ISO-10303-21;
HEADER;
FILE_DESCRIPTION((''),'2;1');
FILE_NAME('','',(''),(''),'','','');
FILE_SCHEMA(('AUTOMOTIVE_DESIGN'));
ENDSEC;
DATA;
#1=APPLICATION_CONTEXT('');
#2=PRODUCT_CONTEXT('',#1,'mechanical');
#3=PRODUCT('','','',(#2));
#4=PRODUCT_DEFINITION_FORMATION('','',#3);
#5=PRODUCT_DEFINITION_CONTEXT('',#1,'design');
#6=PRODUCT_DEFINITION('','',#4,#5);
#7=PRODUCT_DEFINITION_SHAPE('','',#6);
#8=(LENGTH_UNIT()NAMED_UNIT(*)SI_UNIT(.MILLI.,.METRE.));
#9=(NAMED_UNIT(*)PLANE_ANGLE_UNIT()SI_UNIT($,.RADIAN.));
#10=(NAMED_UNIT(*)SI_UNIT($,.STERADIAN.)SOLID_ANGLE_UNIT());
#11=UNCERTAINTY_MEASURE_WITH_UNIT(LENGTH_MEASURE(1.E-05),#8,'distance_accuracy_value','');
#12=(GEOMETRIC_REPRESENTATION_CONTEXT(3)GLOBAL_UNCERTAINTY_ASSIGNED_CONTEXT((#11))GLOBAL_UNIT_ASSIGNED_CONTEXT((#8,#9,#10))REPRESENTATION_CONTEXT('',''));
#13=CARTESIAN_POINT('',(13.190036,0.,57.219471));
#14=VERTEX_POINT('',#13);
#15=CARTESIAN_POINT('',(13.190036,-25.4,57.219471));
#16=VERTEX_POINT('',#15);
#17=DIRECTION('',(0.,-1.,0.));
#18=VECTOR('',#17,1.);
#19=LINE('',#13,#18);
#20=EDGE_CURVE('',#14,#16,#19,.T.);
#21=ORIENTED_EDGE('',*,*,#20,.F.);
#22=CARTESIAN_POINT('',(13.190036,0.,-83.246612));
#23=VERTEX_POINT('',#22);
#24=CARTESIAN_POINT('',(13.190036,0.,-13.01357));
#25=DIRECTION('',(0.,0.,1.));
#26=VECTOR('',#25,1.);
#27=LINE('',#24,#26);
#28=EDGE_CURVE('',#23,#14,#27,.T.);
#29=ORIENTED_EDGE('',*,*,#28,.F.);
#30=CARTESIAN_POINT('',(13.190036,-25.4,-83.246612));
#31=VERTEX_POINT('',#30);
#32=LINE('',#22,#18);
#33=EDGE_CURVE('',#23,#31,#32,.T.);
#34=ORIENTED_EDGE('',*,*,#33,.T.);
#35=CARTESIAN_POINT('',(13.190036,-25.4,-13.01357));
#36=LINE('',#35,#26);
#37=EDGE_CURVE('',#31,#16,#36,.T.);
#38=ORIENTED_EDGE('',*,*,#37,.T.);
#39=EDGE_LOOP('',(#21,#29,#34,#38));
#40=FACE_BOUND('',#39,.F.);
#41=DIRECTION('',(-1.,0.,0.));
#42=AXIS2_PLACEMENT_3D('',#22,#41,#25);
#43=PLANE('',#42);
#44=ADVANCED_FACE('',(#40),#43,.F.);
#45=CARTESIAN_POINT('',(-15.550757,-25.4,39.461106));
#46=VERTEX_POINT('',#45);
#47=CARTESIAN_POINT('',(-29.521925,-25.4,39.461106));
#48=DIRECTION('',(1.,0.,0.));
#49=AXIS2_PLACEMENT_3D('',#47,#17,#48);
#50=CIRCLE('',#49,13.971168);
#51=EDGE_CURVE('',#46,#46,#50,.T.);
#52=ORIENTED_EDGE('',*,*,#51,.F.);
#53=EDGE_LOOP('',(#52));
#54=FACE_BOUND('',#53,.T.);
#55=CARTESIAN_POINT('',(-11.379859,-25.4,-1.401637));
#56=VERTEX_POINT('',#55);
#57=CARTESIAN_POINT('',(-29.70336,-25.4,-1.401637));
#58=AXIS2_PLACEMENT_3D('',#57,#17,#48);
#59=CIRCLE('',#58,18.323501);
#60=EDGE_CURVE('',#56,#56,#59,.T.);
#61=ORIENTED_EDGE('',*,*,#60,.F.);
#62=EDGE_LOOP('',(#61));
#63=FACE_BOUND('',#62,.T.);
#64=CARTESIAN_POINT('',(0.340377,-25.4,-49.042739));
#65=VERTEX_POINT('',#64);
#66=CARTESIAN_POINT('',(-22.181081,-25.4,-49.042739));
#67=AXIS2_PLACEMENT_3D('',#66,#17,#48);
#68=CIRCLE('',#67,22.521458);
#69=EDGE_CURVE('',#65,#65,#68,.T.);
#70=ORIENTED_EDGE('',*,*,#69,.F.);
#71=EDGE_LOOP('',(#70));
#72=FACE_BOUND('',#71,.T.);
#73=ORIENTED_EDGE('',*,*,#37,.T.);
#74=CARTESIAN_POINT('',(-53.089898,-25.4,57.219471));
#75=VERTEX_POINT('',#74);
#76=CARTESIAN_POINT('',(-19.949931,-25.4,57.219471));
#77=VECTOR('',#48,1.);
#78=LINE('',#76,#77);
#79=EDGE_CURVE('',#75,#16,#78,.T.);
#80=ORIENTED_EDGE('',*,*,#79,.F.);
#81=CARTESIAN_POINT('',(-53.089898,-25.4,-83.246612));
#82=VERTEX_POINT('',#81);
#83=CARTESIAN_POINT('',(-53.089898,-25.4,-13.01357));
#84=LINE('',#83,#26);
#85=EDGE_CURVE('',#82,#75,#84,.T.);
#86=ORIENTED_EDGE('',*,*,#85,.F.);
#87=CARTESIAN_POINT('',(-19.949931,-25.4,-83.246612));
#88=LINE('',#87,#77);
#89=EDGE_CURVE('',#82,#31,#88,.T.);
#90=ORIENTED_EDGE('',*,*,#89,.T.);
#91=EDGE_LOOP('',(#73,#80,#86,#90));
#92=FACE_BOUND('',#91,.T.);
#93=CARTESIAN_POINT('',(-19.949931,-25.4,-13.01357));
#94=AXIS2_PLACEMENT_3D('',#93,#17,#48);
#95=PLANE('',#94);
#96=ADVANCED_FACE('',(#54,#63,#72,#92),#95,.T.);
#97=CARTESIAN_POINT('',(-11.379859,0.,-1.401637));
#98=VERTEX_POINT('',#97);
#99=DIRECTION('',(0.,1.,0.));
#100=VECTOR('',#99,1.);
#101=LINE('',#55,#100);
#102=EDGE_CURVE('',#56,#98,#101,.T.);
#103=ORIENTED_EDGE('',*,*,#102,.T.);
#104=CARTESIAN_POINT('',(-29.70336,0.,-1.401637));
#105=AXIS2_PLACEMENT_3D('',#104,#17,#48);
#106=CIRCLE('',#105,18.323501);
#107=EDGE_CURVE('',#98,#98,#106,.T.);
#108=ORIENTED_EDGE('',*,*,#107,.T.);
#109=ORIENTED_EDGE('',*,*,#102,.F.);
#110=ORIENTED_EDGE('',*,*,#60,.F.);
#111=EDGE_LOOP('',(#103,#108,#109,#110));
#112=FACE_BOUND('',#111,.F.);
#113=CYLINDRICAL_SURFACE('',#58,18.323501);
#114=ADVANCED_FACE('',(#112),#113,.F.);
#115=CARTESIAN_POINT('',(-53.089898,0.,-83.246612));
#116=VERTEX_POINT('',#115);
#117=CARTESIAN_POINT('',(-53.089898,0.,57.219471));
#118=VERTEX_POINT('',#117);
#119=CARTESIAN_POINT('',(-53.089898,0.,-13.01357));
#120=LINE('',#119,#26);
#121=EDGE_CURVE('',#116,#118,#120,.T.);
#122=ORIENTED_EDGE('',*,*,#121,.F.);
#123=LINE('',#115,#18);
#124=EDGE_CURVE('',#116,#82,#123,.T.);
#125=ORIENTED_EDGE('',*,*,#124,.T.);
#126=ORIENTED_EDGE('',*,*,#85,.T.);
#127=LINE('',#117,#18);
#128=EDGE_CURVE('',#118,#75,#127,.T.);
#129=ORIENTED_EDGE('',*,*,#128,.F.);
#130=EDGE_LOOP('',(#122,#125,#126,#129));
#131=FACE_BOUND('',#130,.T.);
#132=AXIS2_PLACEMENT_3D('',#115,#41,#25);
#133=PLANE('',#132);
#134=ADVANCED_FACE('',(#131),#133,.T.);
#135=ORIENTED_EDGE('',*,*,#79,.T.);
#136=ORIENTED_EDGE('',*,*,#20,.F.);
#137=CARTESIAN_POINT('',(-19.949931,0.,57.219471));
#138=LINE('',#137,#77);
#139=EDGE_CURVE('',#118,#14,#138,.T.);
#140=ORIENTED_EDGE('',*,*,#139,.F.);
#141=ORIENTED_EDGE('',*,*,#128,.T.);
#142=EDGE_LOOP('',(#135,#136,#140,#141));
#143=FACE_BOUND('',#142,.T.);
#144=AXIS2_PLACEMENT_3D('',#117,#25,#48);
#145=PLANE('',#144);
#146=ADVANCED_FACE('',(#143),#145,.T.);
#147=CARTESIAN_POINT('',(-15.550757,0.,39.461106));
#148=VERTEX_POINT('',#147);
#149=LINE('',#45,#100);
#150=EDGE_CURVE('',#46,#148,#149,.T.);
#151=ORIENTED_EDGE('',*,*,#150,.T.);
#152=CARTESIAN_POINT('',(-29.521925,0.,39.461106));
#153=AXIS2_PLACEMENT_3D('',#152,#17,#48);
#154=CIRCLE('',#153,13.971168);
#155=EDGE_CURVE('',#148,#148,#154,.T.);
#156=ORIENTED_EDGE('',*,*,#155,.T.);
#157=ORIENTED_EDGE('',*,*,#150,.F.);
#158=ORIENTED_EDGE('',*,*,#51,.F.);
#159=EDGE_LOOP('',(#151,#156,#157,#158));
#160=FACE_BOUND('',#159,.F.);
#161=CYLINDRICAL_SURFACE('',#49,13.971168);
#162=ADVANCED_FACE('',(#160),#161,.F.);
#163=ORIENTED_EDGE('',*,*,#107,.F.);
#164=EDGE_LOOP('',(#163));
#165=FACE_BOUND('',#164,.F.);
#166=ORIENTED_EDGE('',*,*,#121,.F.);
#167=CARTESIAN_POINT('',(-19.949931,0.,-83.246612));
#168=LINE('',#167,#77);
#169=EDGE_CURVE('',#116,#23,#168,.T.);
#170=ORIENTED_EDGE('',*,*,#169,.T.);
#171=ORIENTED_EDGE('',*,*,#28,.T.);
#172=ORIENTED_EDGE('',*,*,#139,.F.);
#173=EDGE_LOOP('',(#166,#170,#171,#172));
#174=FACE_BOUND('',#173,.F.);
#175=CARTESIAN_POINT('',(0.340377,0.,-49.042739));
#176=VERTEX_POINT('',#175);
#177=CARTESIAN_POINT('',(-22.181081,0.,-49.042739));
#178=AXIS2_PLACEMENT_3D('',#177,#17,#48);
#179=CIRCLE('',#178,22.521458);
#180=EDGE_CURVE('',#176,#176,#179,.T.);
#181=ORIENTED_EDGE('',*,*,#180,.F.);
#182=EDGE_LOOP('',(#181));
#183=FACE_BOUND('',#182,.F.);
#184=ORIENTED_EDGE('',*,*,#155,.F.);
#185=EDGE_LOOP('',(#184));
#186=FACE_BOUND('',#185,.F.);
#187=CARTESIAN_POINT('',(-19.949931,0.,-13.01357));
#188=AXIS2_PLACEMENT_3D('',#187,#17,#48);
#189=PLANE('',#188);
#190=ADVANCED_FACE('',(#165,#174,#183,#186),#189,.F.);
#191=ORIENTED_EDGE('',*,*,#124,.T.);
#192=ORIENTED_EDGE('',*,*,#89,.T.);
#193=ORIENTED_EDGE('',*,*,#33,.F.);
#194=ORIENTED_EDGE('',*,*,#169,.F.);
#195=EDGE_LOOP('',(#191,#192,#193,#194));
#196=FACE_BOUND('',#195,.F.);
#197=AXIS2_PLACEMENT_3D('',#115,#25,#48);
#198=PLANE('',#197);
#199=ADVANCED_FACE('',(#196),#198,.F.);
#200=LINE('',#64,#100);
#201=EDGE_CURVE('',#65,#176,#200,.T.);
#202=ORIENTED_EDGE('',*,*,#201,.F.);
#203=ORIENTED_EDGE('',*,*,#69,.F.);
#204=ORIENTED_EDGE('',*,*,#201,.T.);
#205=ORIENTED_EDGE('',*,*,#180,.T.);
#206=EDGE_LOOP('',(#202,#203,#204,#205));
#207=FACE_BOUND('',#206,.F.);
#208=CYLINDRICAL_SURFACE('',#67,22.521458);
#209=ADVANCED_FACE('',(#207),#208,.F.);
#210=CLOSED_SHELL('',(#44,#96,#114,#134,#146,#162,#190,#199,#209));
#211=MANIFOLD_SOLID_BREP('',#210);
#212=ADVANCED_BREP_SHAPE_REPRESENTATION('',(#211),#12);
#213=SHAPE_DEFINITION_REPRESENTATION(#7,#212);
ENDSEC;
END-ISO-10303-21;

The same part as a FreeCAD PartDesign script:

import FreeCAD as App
import Part
import Sketcher

V = App.Vector
Q = App.Units.Quantity


def add_polygon(sketch, points):
    """Adds a closed chain of lines whose ends are joined by coincident constraints."""
    first, n = sketch.GeometryCount, len(points)
    for a, b in zip(points, points[1:] + points[:1]):
        sketch.addGeometry(Part.LineSegment(App.Vector(*a, 0), App.Vector(*b, 0)), False)
    for i in range(n):
        sketch.addConstraint(Sketcher.Constraint("Coincident", first + i, 2, first + (i + 1) % n, 1))

doc = App.newDocument("Part")
body = doc.addObject("PartDesign::Body", "Body")

# Sketch on XZ plane
sketch1 = body.newObject("Sketcher::SketchObject", "Sketch")
sketch1.AttachmentSupport = (doc.getObject("XZ_Plane"), [""])
sketch1.MapMode = "FlatFace"
add_polygon(sketch1, [(-53.089898, 57.219471), (-53.089898, -83.246612), (13.190036, -83.246612), (13.190036, 57.219471)])  # lines 0-3
sketch1.addConstraint([
    Sketcher.Constraint("Vertical", 0),
    Sketcher.Constraint("Horizontal", 1),
    Sketcher.Constraint("Vertical", 2),
    Sketcher.Constraint("Horizontal", 3),
    Sketcher.Constraint("DistanceX", 1, 1, 1, 2, 66.279934),
    Sketcher.Constraint("DistanceY", 0, 2, 0, 1, 140.466083),
    Sketcher.Constraint("DistanceY", 0, 2, -1, 1, 83.246612),
    Sketcher.Constraint("DistanceX", 0, 2, -1, 1, 53.089898),
])
pad1 = body.newObject("PartDesign::Pad", "Pad")
pad1.Profile = sketch1
pad1.Length = Q("1 in")

# Sketch on XZ plane
sketch2 = body.newObject("Sketcher::SketchObject", "Sketch001")
sketch2.AttachmentSupport = (doc.getObject("XZ_Plane"), [""])
sketch2.MapMode = "FlatFace"
sketch2.AttachmentOffset = App.Placement(V(0, 0, 1 * 25.4), App.Rotation())
sketch2.addGeometry(Part.Circle(V(-29.521925, 39.461106, 0), V(0, 0, 1), 13.971168), False)
sketch2.addConstraint([
    Sketcher.Constraint("Diameter", 0, 27.942336),
    Sketcher.Constraint("DistanceX", 0, 3, -1, 1, 29.521925),
    Sketcher.Constraint("DistanceY", -1, 1, 0, 3, 39.461106),
])
pocket1 = body.newObject("PartDesign::Pocket", "Pocket")
pocket1.Profile = sketch2
pocket1.Length = Q("1 in")

# Sketch on XZ plane
sketch3 = body.newObject("Sketcher::SketchObject", "Sketch002")
sketch3.AttachmentSupport = (doc.getObject("XZ_Plane"), [""])
sketch3.MapMode = "FlatFace"
sketch3.AttachmentOffset = App.Placement(V(0, 0, 1 * 25.4), App.Rotation())
sketch3.addGeometry(Part.Circle(V(-25.564913, -7.869989, 0), V(0, 0, 1), 19.032879), False)
sketch3.addConstraint([
    Sketcher.Constraint("Diameter", 0, 38.065758),
    Sketcher.Constraint("DistanceY", 0, 3, -1, 1, 7.869989),
    Sketcher.Constraint("DistanceX", 0, 3, -1, 1, 25.564913),
])
pad2 = body.newObject("PartDesign::Pad", "Pad001")
pad2.Profile = sketch3
pad2.Length = Q("1 in")

# Sketch on XZ plane
sketch4 = body.newObject("Sketcher::SketchObject", "Sketch003")
sketch4.AttachmentSupport = (doc.getObject("XZ_Plane"), [""])
sketch4.MapMode = "FlatFace"
sketch4.AttachmentOffset = App.Placement(V(0, 0, 2 * 25.4), App.Rotation())
sketch4.addGeometry(Part.Circle(V(-25.564913, -7.869989, 0), V(0, 0, 1), 19.032879), False)
sketch4.addConstraint([
    Sketcher.Constraint("Diameter", 0, 38.065758),
    Sketcher.Constraint("DistanceY", 0, 3, -1, 1, 7.869989),
    Sketcher.Constraint("DistanceX", 0, 3, -1, 1, 25.564913),
])
pocket2 = body.newObject("PartDesign::Pocket", "Pocket001")
pocket2.Profile = sketch4
pocket2.Length = Q("1 in")

# Sketch on XZ plane
sketch5 = body.newObject("Sketcher::SketchObject", "Sketch004")
sketch5.AttachmentSupport = (doc.getObject("XZ_Plane"), [""])
sketch5.MapMode = "FlatFace"
sketch5.AttachmentOffset = App.Placement(V(0, 0, 1 * 25.4), App.Rotation())
sketch5.addGeometry([
    Part.Circle(V(-29.70336, -1.401637, 0), V(0, 0, 1), 18.323501),
    Part.Circle(V(-22.181081, -49.042739, 0), V(0, 0, 1), 22.521458),
], False)
sketch5.addConstraint([
    Sketcher.Constraint("Diameter", 0, 36.647002),
    Sketcher.Constraint("Diameter", 1, 45.042916),
    Sketcher.Constraint("DistanceY", 1, 3, 0, 3, 47.641102),
    Sketcher.Constraint("DistanceX", 0, 3, -1, 1, 29.70336),
    Sketcher.Constraint("DistanceX", 1, 3, -1, 1, 22.181081),
    Sketcher.Constraint("DistanceY", 1, 3, -1, 1, 49.042739),
])
pocket3 = body.newObject("PartDesign::Pocket", "Pocket002")
pocket3.Profile = sketch5
pocket3.Length = Q("1 in")

doc.recompute()
